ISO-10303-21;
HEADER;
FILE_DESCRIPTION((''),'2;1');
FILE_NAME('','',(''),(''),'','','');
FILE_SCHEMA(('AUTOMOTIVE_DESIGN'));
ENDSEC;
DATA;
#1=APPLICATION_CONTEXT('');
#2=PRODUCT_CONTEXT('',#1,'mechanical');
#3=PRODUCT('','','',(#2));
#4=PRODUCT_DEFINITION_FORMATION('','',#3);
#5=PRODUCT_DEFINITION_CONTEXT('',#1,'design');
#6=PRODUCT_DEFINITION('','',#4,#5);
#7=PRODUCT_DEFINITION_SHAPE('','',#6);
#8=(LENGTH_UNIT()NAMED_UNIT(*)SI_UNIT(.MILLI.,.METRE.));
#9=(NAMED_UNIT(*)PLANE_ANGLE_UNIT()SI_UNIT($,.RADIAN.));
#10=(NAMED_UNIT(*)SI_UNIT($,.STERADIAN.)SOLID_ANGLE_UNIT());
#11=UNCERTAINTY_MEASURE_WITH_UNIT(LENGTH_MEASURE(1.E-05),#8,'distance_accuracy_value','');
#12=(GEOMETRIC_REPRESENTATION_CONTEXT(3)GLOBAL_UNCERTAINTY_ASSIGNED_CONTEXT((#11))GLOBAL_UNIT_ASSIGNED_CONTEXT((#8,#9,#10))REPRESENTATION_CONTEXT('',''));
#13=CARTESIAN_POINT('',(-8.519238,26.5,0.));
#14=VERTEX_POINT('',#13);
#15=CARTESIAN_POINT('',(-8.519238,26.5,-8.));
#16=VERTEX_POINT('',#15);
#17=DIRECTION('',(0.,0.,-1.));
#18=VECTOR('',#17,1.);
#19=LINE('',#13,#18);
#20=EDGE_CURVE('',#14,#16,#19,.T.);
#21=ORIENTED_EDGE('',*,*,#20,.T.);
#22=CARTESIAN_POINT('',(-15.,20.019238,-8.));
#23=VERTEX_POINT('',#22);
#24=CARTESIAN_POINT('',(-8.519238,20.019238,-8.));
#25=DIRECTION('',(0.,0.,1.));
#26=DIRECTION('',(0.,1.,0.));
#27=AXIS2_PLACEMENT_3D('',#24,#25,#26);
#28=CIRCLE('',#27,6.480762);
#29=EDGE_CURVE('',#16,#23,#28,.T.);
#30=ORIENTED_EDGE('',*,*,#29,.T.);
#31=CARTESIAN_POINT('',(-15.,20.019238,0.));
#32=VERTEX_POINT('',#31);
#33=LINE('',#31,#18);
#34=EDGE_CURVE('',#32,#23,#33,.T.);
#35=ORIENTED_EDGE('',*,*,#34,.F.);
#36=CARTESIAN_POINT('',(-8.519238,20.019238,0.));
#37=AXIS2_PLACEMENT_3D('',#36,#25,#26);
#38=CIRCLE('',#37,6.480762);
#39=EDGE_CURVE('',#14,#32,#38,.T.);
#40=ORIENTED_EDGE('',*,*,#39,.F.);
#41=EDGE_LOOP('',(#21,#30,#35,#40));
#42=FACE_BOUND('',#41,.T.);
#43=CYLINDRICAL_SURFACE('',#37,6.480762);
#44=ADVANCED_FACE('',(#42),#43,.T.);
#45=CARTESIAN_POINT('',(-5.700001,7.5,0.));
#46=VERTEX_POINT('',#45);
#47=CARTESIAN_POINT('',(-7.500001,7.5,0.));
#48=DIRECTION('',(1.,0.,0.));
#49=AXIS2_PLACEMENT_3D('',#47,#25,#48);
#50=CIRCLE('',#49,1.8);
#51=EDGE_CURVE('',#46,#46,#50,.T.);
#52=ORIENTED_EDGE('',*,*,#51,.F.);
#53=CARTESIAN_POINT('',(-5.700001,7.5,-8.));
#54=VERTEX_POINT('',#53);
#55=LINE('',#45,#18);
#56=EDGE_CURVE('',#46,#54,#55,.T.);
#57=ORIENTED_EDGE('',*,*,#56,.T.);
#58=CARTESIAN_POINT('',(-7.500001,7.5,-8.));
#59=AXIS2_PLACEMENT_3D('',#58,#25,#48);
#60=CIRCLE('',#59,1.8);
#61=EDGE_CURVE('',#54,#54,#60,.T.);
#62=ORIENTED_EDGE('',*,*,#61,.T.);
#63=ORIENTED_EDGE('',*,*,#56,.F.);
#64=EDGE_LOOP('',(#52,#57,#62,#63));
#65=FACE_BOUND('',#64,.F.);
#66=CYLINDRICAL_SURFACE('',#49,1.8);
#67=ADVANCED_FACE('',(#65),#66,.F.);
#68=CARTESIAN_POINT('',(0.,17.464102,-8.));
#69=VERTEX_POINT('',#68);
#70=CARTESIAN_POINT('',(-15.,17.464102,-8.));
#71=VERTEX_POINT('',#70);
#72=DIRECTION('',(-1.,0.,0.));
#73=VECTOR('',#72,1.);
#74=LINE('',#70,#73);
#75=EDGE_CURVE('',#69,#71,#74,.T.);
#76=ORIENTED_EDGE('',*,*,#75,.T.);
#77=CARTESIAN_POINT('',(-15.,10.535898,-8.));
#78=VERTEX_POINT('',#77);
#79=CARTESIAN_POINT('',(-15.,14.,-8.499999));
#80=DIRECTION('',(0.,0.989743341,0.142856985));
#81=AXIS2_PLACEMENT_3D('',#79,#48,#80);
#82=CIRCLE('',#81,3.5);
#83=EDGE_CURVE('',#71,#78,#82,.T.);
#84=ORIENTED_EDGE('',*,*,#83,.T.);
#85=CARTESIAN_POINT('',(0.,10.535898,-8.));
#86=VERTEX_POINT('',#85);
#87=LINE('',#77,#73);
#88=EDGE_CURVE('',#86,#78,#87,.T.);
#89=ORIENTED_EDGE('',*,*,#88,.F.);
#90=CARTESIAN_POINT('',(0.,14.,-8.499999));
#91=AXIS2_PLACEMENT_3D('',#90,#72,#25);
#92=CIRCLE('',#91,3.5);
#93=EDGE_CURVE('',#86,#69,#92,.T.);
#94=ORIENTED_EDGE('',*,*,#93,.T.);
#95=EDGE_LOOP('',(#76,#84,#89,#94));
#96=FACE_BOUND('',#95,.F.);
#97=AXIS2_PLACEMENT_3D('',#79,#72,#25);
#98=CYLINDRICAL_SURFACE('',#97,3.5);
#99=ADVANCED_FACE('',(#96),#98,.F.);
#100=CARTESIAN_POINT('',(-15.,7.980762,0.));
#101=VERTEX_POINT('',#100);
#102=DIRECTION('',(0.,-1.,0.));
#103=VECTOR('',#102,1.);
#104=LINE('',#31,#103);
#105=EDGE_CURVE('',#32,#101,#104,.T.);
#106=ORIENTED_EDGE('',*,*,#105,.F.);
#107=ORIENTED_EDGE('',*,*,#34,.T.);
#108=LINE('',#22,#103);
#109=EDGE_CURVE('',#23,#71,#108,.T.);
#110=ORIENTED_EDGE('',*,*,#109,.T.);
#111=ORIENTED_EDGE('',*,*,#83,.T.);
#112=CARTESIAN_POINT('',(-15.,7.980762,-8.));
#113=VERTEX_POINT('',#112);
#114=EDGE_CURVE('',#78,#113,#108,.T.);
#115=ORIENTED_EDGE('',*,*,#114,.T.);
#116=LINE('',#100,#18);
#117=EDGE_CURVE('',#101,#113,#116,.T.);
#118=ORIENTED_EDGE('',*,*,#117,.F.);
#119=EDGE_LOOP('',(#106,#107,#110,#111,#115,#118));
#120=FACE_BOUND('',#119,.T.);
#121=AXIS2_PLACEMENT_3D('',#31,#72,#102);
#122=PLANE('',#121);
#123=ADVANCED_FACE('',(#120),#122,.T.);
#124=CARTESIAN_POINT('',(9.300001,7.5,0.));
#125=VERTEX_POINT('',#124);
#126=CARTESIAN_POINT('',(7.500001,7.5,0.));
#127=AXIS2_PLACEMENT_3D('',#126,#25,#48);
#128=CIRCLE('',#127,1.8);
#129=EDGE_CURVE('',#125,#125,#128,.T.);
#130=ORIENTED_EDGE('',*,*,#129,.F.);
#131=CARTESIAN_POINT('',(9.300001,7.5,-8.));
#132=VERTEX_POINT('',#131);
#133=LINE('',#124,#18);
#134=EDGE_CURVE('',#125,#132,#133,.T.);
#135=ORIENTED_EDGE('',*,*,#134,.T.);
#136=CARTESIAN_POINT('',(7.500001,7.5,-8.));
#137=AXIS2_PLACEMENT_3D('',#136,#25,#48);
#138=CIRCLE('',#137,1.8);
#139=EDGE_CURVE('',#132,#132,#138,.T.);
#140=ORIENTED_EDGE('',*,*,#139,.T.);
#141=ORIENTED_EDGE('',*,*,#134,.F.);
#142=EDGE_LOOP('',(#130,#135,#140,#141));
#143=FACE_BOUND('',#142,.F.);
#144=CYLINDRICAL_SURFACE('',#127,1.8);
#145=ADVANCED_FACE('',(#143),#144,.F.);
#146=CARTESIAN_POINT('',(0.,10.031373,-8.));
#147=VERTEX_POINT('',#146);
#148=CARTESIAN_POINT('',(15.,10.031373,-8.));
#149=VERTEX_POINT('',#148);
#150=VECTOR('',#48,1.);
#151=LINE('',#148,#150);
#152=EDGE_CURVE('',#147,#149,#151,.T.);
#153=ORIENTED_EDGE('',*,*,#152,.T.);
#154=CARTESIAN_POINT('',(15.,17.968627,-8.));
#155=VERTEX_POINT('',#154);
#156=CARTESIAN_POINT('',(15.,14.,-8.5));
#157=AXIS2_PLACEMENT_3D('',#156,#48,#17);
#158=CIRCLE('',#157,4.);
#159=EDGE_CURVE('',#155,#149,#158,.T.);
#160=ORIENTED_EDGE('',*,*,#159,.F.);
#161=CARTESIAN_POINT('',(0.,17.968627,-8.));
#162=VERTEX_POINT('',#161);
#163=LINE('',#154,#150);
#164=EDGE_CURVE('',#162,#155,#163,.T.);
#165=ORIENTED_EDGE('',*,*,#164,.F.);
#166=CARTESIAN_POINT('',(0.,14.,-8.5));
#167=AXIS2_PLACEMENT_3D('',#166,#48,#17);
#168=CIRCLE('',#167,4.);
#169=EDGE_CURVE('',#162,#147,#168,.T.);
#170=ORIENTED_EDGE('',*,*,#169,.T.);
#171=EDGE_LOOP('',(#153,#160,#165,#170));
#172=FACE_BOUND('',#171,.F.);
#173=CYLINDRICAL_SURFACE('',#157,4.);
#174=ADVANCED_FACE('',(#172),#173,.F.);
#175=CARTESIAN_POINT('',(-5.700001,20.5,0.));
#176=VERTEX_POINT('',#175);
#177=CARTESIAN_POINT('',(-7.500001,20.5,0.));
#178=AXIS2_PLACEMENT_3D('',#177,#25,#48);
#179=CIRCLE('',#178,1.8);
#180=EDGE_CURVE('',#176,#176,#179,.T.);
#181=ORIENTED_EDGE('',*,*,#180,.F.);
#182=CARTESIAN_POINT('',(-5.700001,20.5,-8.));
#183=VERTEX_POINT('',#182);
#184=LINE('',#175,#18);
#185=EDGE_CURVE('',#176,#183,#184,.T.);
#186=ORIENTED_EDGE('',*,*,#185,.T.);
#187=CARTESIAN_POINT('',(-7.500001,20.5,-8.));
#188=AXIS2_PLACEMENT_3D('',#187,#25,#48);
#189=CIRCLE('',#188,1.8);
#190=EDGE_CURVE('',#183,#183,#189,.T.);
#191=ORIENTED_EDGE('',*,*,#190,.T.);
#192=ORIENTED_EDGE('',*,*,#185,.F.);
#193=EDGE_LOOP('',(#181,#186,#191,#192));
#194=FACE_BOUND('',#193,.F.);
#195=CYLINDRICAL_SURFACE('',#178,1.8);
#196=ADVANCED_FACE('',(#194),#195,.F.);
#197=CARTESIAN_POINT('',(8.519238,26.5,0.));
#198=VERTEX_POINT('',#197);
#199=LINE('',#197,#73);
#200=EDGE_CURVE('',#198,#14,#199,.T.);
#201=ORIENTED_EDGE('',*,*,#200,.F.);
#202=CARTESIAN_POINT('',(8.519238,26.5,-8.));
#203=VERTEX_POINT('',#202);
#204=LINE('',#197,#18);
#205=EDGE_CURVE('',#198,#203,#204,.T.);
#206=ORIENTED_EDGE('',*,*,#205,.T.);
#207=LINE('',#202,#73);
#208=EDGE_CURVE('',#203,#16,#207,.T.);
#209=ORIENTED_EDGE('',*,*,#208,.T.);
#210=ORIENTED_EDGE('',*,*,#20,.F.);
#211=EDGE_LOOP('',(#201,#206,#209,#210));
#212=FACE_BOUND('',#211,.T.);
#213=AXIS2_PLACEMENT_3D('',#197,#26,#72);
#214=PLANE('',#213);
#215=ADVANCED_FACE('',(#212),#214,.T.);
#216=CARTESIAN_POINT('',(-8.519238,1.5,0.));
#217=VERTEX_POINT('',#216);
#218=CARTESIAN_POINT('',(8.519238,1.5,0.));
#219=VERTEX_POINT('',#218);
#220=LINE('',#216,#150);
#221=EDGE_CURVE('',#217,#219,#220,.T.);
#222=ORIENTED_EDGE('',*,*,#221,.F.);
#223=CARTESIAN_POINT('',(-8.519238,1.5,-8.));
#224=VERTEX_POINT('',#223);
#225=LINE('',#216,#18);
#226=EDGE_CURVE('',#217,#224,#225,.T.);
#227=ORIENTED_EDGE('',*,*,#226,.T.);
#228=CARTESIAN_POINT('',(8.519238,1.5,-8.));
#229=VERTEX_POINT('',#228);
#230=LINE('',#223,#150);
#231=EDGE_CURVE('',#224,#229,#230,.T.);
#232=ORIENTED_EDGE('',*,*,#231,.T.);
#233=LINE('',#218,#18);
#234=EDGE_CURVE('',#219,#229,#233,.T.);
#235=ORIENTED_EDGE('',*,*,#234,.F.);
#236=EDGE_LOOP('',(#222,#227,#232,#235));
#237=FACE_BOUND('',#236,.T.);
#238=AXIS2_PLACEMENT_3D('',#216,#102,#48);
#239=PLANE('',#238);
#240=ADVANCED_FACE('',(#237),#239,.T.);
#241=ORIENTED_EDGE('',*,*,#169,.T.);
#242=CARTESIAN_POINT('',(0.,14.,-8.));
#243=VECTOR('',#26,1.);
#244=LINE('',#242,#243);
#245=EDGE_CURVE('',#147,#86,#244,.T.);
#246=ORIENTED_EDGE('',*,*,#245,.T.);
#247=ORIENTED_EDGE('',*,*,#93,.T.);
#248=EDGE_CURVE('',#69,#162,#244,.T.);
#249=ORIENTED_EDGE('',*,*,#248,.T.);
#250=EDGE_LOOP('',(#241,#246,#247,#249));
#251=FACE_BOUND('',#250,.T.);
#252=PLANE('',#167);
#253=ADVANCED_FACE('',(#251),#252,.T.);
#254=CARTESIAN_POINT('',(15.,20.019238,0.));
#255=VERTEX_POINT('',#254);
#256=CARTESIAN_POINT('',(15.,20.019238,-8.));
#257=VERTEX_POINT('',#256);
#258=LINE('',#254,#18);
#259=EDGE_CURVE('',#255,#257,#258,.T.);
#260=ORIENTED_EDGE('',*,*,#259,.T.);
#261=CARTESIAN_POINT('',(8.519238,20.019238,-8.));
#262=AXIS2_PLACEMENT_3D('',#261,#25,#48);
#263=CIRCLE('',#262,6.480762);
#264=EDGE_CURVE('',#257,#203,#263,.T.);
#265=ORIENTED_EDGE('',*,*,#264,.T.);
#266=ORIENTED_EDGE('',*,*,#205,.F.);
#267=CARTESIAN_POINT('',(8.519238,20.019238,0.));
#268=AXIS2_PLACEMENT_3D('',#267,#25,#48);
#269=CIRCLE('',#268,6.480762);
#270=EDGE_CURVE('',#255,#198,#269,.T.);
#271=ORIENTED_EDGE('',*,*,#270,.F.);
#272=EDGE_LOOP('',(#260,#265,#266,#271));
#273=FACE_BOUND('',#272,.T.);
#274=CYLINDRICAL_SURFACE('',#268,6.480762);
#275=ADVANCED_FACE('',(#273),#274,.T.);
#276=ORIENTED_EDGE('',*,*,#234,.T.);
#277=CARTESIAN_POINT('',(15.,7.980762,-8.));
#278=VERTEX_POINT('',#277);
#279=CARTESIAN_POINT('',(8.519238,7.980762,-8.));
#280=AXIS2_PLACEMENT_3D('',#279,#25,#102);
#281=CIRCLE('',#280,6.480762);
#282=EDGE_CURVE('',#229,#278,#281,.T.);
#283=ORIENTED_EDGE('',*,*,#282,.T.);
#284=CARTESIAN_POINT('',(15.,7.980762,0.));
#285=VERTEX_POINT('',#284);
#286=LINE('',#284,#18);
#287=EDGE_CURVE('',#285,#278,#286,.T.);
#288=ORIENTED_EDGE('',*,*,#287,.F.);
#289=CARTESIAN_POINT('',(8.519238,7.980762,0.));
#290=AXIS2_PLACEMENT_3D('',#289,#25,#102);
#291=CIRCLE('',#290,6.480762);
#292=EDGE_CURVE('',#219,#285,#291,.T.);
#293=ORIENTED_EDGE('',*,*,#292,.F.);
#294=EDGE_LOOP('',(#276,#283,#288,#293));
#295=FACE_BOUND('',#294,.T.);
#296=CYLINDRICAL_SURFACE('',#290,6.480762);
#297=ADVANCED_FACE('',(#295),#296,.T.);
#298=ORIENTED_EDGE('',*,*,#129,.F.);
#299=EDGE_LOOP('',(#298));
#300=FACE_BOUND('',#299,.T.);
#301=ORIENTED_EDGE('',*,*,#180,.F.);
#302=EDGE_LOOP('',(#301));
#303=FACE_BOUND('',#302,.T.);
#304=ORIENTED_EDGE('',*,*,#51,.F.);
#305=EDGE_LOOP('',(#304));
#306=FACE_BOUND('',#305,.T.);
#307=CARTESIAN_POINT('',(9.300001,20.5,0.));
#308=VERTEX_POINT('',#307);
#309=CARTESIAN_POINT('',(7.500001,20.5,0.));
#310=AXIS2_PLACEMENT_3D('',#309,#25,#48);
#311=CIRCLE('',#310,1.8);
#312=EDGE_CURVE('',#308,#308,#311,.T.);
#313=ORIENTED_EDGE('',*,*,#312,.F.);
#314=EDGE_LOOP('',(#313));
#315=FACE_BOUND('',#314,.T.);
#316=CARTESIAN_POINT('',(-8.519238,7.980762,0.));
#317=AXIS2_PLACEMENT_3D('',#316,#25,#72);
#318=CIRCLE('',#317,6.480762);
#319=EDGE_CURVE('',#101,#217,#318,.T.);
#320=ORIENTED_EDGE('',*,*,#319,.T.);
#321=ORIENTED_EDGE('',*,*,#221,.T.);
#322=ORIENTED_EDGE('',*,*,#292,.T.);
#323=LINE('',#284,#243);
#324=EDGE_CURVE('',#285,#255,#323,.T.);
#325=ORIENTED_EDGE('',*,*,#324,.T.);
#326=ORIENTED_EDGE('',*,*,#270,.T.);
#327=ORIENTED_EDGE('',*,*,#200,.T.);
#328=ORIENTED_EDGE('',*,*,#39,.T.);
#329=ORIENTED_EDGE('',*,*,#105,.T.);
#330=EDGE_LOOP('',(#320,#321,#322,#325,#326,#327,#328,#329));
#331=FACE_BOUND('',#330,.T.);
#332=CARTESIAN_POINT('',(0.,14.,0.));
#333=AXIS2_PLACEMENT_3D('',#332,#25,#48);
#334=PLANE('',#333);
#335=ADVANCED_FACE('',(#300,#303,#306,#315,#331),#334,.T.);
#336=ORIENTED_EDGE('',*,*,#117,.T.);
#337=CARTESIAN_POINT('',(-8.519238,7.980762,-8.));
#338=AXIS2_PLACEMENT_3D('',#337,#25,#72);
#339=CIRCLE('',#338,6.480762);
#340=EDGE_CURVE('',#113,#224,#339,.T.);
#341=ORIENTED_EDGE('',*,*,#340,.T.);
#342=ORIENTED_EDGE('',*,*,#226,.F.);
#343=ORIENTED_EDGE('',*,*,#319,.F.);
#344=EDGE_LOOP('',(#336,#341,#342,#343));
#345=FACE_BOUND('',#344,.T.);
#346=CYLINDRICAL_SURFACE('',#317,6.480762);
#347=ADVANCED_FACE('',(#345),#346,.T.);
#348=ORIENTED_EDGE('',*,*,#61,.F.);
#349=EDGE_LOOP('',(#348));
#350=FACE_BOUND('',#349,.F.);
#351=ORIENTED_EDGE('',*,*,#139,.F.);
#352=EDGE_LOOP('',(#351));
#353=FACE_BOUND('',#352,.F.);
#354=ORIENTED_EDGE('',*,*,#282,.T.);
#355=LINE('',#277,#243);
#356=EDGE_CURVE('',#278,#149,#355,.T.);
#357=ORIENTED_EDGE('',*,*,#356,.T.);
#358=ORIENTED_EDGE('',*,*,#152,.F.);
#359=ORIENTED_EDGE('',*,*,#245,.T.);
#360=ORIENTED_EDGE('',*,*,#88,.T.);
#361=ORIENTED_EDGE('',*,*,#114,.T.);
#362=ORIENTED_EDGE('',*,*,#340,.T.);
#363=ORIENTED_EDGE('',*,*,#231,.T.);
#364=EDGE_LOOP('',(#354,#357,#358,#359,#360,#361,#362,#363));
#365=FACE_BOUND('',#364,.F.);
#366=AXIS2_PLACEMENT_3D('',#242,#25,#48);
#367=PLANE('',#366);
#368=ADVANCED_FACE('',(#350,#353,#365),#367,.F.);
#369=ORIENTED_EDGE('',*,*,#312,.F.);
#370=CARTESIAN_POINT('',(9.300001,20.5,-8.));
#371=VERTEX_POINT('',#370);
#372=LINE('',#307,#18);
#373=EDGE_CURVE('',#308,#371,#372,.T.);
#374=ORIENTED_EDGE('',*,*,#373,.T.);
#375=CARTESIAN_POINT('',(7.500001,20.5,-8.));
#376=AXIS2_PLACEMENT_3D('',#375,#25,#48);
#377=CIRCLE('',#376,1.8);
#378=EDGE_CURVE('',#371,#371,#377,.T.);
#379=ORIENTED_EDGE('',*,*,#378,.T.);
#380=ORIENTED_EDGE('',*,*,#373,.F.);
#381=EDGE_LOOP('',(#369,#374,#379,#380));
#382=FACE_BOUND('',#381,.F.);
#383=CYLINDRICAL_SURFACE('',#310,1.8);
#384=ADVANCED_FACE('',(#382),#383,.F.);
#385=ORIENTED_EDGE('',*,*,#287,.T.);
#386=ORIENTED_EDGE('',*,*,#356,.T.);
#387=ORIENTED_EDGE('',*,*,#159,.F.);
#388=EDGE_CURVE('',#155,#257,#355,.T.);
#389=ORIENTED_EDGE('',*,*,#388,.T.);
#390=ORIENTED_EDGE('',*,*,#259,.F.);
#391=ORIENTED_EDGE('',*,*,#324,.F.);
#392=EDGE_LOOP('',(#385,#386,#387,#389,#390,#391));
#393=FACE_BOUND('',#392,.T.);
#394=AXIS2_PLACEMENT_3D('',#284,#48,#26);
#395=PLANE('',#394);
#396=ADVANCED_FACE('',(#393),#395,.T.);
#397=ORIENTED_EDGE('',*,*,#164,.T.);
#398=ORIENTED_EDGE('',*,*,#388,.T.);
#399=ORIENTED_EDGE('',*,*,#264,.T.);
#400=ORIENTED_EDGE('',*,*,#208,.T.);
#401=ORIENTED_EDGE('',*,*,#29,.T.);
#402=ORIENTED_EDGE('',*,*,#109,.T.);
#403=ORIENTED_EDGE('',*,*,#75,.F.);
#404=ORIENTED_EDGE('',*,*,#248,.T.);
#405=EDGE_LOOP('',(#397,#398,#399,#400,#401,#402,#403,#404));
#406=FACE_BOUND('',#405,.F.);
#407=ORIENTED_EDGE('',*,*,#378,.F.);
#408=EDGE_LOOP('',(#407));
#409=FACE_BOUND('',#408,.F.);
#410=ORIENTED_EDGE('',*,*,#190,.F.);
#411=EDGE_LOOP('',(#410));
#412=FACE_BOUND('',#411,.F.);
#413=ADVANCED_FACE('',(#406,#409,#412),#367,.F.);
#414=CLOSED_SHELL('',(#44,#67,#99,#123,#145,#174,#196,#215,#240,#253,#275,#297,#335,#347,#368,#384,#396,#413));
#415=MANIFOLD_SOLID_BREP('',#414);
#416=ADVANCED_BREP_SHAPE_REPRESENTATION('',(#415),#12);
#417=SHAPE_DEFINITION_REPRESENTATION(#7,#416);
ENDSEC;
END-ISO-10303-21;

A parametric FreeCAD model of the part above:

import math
import FreeCAD as App
import Part
import Sketcher
Q = App.Units.Quantity

doc = App.newDocument("Part")
body = doc.addObject("PartDesign::Body", "Body")

# Sketch on XY plane
sketch1 = body.newObject("Sketcher::SketchObject", "Sketch")
sketch1.AttachmentSupport = (doc.getObject("XY_Plane"), [""])
sketch1.MapMode = "FlatFace"
sketch1.addGeometry([
    Part.LineSegment(App.Vector(8.519238, 26.5, 0), App.Vector(-8.519238, 26.5, 0)),  # 0
    Part.ArcOfCircle(Part.Circle(App.Vector(-8.519238, 20.019238, 0), App.Vector(0, 0, 1), 6.480762), math.radians(90), math.radians(180)),  # 1
    Part.LineSegment(App.Vector(-15, 20.019238, 0), App.Vector(-15, 7.980762, 0)),  # 2
    Part.ArcOfCircle(Part.Circle(App.Vector(-8.519238, 7.980762, 0), App.Vector(0, 0, 1), 6.480762), math.radians(-180), math.radians(-90)),  # 3
    Part.LineSegment(App.Vector(-8.519238, 1.5, 0), App.Vector(8.519238, 1.5, 0)),  # 4
    Part.ArcOfCircle(Part.Circle(App.Vector(8.519238, 7.980762, 0), App.Vector(0, 0, 1), 6.480762), math.radians(-90), math.radians(0)),  # 5
    Part.LineSegment(App.Vector(15, 7.980762, 0), App.Vector(15, 20.019238, 0)),  # 6
    Part.ArcOfCircle(Part.Circle(App.Vector(8.519238, 20.019238, 0), App.Vector(0, 0, 1), 6.480762), math.radians(0), math.radians(90)),  # 7
    Part.Circle(App.Vector(-7.500001, 7.5, 0), App.Vector(0, 0, 1), 1.8),  # 8
    Part.Circle(App.Vector(7.500001, 7.5, 0), App.Vector(0, 0, 1), 1.8),  # 9
    Part.Circle(App.Vector(-7.500001, 20.5, 0), App.Vector(0, 0, 1), 1.8),  # 10
    Part.Circle(App.Vector(7.500001, 20.5, 0), App.Vector(0, 0, 1), 1.8),  # 11
], False)
sketch1.addConstraint([
    Sketcher.Constraint("Tangent", 0, 2, 1, 1),
    Sketcher.Constraint("Tangent", 1, 2, 2, 1),
    Sketcher.Constraint("Tangent", 2, 2, 3, 1),
    Sketcher.Constraint("Tangent", 3, 2, 4, 1),
    Sketcher.Constraint("Tangent", 4, 2, 5, 1),
    Sketcher.Constraint("Tangent", 5, 2, 6, 1),
    Sketcher.Constraint("Tangent", 6, 2, 7, 1),
    Sketcher.Constraint("Tangent", 7, 2, 0, 1),
    Sketcher.Constraint("Horizontal", 0),
    Sketcher.Constraint("Vertical", 2),
    Sketcher.Constraint("Horizontal", 4),
    Sketcher.Constraint("Vertical", 6),
    Sketcher.Constraint("Equal", 1, 3),
    Sketcher.Constraint("Equal", 3, 5),
    Sketcher.Constraint("Equal", 5, 7),
    Sketcher.Constraint("Equal", 8, 9),
    Sketcher.Constraint("Equal", 9, 10),
    Sketcher.Constraint("Equal", 10, 11),
    Sketcher.Constraint("Symmetric", 8, 3, 9, 3, -2),
    Sketcher.Constraint("Symmetric", 10, 3, 11, 3, -2),
    Sketcher.Constraint("Vertical", 8, 3, 10, 3),
    Sketcher.Constraint("Diameter", 8, Q("3.6 mm")),
    Sketcher.Constraint("DistanceX", 1, 2, -1, 1, Q("15 mm")),
    Sketcher.Constraint("DistanceX", -1, 1, 5, 2, Q("15 mm")),
    Sketcher.Constraint("DistanceX", 8, 3, 9, 3, Q("15.000001 mm")),
    Sketcher.Constraint("DistanceY", 8, 3, 10, 3, Q("13 mm")),
    Sketcher.Constraint("DistanceY", 10, 3, 0, 2, Q("6 mm")),
    Sketcher.Constraint("DistanceY", 3, 2, 8, 3, Q("6 mm")),
    Sketcher.Constraint("DistanceY", -1, 1, 8, 3, Q("7.5 mm")),
    Sketcher.Constraint("Radius", 1, Q("6.480762 mm")),
])
pad1 = body.newObject("PartDesign::Pad", "Pad")
pad1.Profile = sketch1
pad1.Length = 8
pad1.Reversed = True

# Sketch on YZ plane
sketch2 = body.newObject("Sketcher::SketchObject", "Sketch001")
sketch2.AttachmentSupport = (doc.getObject("YZ_Plane"), [""])
sketch2.MapMode = "FlatFace"
sketch2.AttachmentOffset = App.Placement(App.Vector(0, 0, -15), App.Rotation())
sketch2.addGeometry(Part.Circle(App.Vector(14, -8.499999, 0), App.Vector(0, 0, 1), 3.5), False)
sketch2.addConstraint([
    Sketcher.Constraint("Diameter", 0, Q("7 mm")),
    Sketcher.Constraint("DistanceX", -1, 1, 0, 3, Q("14 mm")),
    Sketcher.Constraint("DistanceY", 0, 3, -1, 1, Q("8.499999 mm")),
])
pocket1 = body.newObject("PartDesign::Pocket", "Pocket")
pocket1.Profile = sketch2
pocket1.Type = "ThroughAll"
pocket1.Reversed = True

# Sketch on YZ plane
sketch3 = body.newObject("Sketcher::SketchObject", "Sketch002")
sketch3.AttachmentSupport = (doc.getObject("YZ_Plane"), [""])
sketch3.MapMode = "FlatFace"
sketch3.AttachmentOffset = App.Placement(App.Vector(0, 0, 15), App.Rotation())
sketch3.addGeometry(Part.Circle(App.Vector(14, -8.5, 0), App.Vector(0, 0, 1), 4), False)
sketch3.addConstraint([
    Sketcher.Constraint("Diameter", 0, Q("8 mm")),
    Sketcher.Constraint("DistanceX", -1, 1, 0, 3, Q("14 mm")),
    Sketcher.Constraint("DistanceY", 0, 3, -1, 1, Q("8.5 mm")),
])
pocket2 = body.newObject("PartDesign::Pocket", "Pocket001")
pocket2.Profile = sketch3
pocket2.Length = 15

doc.recompute()
